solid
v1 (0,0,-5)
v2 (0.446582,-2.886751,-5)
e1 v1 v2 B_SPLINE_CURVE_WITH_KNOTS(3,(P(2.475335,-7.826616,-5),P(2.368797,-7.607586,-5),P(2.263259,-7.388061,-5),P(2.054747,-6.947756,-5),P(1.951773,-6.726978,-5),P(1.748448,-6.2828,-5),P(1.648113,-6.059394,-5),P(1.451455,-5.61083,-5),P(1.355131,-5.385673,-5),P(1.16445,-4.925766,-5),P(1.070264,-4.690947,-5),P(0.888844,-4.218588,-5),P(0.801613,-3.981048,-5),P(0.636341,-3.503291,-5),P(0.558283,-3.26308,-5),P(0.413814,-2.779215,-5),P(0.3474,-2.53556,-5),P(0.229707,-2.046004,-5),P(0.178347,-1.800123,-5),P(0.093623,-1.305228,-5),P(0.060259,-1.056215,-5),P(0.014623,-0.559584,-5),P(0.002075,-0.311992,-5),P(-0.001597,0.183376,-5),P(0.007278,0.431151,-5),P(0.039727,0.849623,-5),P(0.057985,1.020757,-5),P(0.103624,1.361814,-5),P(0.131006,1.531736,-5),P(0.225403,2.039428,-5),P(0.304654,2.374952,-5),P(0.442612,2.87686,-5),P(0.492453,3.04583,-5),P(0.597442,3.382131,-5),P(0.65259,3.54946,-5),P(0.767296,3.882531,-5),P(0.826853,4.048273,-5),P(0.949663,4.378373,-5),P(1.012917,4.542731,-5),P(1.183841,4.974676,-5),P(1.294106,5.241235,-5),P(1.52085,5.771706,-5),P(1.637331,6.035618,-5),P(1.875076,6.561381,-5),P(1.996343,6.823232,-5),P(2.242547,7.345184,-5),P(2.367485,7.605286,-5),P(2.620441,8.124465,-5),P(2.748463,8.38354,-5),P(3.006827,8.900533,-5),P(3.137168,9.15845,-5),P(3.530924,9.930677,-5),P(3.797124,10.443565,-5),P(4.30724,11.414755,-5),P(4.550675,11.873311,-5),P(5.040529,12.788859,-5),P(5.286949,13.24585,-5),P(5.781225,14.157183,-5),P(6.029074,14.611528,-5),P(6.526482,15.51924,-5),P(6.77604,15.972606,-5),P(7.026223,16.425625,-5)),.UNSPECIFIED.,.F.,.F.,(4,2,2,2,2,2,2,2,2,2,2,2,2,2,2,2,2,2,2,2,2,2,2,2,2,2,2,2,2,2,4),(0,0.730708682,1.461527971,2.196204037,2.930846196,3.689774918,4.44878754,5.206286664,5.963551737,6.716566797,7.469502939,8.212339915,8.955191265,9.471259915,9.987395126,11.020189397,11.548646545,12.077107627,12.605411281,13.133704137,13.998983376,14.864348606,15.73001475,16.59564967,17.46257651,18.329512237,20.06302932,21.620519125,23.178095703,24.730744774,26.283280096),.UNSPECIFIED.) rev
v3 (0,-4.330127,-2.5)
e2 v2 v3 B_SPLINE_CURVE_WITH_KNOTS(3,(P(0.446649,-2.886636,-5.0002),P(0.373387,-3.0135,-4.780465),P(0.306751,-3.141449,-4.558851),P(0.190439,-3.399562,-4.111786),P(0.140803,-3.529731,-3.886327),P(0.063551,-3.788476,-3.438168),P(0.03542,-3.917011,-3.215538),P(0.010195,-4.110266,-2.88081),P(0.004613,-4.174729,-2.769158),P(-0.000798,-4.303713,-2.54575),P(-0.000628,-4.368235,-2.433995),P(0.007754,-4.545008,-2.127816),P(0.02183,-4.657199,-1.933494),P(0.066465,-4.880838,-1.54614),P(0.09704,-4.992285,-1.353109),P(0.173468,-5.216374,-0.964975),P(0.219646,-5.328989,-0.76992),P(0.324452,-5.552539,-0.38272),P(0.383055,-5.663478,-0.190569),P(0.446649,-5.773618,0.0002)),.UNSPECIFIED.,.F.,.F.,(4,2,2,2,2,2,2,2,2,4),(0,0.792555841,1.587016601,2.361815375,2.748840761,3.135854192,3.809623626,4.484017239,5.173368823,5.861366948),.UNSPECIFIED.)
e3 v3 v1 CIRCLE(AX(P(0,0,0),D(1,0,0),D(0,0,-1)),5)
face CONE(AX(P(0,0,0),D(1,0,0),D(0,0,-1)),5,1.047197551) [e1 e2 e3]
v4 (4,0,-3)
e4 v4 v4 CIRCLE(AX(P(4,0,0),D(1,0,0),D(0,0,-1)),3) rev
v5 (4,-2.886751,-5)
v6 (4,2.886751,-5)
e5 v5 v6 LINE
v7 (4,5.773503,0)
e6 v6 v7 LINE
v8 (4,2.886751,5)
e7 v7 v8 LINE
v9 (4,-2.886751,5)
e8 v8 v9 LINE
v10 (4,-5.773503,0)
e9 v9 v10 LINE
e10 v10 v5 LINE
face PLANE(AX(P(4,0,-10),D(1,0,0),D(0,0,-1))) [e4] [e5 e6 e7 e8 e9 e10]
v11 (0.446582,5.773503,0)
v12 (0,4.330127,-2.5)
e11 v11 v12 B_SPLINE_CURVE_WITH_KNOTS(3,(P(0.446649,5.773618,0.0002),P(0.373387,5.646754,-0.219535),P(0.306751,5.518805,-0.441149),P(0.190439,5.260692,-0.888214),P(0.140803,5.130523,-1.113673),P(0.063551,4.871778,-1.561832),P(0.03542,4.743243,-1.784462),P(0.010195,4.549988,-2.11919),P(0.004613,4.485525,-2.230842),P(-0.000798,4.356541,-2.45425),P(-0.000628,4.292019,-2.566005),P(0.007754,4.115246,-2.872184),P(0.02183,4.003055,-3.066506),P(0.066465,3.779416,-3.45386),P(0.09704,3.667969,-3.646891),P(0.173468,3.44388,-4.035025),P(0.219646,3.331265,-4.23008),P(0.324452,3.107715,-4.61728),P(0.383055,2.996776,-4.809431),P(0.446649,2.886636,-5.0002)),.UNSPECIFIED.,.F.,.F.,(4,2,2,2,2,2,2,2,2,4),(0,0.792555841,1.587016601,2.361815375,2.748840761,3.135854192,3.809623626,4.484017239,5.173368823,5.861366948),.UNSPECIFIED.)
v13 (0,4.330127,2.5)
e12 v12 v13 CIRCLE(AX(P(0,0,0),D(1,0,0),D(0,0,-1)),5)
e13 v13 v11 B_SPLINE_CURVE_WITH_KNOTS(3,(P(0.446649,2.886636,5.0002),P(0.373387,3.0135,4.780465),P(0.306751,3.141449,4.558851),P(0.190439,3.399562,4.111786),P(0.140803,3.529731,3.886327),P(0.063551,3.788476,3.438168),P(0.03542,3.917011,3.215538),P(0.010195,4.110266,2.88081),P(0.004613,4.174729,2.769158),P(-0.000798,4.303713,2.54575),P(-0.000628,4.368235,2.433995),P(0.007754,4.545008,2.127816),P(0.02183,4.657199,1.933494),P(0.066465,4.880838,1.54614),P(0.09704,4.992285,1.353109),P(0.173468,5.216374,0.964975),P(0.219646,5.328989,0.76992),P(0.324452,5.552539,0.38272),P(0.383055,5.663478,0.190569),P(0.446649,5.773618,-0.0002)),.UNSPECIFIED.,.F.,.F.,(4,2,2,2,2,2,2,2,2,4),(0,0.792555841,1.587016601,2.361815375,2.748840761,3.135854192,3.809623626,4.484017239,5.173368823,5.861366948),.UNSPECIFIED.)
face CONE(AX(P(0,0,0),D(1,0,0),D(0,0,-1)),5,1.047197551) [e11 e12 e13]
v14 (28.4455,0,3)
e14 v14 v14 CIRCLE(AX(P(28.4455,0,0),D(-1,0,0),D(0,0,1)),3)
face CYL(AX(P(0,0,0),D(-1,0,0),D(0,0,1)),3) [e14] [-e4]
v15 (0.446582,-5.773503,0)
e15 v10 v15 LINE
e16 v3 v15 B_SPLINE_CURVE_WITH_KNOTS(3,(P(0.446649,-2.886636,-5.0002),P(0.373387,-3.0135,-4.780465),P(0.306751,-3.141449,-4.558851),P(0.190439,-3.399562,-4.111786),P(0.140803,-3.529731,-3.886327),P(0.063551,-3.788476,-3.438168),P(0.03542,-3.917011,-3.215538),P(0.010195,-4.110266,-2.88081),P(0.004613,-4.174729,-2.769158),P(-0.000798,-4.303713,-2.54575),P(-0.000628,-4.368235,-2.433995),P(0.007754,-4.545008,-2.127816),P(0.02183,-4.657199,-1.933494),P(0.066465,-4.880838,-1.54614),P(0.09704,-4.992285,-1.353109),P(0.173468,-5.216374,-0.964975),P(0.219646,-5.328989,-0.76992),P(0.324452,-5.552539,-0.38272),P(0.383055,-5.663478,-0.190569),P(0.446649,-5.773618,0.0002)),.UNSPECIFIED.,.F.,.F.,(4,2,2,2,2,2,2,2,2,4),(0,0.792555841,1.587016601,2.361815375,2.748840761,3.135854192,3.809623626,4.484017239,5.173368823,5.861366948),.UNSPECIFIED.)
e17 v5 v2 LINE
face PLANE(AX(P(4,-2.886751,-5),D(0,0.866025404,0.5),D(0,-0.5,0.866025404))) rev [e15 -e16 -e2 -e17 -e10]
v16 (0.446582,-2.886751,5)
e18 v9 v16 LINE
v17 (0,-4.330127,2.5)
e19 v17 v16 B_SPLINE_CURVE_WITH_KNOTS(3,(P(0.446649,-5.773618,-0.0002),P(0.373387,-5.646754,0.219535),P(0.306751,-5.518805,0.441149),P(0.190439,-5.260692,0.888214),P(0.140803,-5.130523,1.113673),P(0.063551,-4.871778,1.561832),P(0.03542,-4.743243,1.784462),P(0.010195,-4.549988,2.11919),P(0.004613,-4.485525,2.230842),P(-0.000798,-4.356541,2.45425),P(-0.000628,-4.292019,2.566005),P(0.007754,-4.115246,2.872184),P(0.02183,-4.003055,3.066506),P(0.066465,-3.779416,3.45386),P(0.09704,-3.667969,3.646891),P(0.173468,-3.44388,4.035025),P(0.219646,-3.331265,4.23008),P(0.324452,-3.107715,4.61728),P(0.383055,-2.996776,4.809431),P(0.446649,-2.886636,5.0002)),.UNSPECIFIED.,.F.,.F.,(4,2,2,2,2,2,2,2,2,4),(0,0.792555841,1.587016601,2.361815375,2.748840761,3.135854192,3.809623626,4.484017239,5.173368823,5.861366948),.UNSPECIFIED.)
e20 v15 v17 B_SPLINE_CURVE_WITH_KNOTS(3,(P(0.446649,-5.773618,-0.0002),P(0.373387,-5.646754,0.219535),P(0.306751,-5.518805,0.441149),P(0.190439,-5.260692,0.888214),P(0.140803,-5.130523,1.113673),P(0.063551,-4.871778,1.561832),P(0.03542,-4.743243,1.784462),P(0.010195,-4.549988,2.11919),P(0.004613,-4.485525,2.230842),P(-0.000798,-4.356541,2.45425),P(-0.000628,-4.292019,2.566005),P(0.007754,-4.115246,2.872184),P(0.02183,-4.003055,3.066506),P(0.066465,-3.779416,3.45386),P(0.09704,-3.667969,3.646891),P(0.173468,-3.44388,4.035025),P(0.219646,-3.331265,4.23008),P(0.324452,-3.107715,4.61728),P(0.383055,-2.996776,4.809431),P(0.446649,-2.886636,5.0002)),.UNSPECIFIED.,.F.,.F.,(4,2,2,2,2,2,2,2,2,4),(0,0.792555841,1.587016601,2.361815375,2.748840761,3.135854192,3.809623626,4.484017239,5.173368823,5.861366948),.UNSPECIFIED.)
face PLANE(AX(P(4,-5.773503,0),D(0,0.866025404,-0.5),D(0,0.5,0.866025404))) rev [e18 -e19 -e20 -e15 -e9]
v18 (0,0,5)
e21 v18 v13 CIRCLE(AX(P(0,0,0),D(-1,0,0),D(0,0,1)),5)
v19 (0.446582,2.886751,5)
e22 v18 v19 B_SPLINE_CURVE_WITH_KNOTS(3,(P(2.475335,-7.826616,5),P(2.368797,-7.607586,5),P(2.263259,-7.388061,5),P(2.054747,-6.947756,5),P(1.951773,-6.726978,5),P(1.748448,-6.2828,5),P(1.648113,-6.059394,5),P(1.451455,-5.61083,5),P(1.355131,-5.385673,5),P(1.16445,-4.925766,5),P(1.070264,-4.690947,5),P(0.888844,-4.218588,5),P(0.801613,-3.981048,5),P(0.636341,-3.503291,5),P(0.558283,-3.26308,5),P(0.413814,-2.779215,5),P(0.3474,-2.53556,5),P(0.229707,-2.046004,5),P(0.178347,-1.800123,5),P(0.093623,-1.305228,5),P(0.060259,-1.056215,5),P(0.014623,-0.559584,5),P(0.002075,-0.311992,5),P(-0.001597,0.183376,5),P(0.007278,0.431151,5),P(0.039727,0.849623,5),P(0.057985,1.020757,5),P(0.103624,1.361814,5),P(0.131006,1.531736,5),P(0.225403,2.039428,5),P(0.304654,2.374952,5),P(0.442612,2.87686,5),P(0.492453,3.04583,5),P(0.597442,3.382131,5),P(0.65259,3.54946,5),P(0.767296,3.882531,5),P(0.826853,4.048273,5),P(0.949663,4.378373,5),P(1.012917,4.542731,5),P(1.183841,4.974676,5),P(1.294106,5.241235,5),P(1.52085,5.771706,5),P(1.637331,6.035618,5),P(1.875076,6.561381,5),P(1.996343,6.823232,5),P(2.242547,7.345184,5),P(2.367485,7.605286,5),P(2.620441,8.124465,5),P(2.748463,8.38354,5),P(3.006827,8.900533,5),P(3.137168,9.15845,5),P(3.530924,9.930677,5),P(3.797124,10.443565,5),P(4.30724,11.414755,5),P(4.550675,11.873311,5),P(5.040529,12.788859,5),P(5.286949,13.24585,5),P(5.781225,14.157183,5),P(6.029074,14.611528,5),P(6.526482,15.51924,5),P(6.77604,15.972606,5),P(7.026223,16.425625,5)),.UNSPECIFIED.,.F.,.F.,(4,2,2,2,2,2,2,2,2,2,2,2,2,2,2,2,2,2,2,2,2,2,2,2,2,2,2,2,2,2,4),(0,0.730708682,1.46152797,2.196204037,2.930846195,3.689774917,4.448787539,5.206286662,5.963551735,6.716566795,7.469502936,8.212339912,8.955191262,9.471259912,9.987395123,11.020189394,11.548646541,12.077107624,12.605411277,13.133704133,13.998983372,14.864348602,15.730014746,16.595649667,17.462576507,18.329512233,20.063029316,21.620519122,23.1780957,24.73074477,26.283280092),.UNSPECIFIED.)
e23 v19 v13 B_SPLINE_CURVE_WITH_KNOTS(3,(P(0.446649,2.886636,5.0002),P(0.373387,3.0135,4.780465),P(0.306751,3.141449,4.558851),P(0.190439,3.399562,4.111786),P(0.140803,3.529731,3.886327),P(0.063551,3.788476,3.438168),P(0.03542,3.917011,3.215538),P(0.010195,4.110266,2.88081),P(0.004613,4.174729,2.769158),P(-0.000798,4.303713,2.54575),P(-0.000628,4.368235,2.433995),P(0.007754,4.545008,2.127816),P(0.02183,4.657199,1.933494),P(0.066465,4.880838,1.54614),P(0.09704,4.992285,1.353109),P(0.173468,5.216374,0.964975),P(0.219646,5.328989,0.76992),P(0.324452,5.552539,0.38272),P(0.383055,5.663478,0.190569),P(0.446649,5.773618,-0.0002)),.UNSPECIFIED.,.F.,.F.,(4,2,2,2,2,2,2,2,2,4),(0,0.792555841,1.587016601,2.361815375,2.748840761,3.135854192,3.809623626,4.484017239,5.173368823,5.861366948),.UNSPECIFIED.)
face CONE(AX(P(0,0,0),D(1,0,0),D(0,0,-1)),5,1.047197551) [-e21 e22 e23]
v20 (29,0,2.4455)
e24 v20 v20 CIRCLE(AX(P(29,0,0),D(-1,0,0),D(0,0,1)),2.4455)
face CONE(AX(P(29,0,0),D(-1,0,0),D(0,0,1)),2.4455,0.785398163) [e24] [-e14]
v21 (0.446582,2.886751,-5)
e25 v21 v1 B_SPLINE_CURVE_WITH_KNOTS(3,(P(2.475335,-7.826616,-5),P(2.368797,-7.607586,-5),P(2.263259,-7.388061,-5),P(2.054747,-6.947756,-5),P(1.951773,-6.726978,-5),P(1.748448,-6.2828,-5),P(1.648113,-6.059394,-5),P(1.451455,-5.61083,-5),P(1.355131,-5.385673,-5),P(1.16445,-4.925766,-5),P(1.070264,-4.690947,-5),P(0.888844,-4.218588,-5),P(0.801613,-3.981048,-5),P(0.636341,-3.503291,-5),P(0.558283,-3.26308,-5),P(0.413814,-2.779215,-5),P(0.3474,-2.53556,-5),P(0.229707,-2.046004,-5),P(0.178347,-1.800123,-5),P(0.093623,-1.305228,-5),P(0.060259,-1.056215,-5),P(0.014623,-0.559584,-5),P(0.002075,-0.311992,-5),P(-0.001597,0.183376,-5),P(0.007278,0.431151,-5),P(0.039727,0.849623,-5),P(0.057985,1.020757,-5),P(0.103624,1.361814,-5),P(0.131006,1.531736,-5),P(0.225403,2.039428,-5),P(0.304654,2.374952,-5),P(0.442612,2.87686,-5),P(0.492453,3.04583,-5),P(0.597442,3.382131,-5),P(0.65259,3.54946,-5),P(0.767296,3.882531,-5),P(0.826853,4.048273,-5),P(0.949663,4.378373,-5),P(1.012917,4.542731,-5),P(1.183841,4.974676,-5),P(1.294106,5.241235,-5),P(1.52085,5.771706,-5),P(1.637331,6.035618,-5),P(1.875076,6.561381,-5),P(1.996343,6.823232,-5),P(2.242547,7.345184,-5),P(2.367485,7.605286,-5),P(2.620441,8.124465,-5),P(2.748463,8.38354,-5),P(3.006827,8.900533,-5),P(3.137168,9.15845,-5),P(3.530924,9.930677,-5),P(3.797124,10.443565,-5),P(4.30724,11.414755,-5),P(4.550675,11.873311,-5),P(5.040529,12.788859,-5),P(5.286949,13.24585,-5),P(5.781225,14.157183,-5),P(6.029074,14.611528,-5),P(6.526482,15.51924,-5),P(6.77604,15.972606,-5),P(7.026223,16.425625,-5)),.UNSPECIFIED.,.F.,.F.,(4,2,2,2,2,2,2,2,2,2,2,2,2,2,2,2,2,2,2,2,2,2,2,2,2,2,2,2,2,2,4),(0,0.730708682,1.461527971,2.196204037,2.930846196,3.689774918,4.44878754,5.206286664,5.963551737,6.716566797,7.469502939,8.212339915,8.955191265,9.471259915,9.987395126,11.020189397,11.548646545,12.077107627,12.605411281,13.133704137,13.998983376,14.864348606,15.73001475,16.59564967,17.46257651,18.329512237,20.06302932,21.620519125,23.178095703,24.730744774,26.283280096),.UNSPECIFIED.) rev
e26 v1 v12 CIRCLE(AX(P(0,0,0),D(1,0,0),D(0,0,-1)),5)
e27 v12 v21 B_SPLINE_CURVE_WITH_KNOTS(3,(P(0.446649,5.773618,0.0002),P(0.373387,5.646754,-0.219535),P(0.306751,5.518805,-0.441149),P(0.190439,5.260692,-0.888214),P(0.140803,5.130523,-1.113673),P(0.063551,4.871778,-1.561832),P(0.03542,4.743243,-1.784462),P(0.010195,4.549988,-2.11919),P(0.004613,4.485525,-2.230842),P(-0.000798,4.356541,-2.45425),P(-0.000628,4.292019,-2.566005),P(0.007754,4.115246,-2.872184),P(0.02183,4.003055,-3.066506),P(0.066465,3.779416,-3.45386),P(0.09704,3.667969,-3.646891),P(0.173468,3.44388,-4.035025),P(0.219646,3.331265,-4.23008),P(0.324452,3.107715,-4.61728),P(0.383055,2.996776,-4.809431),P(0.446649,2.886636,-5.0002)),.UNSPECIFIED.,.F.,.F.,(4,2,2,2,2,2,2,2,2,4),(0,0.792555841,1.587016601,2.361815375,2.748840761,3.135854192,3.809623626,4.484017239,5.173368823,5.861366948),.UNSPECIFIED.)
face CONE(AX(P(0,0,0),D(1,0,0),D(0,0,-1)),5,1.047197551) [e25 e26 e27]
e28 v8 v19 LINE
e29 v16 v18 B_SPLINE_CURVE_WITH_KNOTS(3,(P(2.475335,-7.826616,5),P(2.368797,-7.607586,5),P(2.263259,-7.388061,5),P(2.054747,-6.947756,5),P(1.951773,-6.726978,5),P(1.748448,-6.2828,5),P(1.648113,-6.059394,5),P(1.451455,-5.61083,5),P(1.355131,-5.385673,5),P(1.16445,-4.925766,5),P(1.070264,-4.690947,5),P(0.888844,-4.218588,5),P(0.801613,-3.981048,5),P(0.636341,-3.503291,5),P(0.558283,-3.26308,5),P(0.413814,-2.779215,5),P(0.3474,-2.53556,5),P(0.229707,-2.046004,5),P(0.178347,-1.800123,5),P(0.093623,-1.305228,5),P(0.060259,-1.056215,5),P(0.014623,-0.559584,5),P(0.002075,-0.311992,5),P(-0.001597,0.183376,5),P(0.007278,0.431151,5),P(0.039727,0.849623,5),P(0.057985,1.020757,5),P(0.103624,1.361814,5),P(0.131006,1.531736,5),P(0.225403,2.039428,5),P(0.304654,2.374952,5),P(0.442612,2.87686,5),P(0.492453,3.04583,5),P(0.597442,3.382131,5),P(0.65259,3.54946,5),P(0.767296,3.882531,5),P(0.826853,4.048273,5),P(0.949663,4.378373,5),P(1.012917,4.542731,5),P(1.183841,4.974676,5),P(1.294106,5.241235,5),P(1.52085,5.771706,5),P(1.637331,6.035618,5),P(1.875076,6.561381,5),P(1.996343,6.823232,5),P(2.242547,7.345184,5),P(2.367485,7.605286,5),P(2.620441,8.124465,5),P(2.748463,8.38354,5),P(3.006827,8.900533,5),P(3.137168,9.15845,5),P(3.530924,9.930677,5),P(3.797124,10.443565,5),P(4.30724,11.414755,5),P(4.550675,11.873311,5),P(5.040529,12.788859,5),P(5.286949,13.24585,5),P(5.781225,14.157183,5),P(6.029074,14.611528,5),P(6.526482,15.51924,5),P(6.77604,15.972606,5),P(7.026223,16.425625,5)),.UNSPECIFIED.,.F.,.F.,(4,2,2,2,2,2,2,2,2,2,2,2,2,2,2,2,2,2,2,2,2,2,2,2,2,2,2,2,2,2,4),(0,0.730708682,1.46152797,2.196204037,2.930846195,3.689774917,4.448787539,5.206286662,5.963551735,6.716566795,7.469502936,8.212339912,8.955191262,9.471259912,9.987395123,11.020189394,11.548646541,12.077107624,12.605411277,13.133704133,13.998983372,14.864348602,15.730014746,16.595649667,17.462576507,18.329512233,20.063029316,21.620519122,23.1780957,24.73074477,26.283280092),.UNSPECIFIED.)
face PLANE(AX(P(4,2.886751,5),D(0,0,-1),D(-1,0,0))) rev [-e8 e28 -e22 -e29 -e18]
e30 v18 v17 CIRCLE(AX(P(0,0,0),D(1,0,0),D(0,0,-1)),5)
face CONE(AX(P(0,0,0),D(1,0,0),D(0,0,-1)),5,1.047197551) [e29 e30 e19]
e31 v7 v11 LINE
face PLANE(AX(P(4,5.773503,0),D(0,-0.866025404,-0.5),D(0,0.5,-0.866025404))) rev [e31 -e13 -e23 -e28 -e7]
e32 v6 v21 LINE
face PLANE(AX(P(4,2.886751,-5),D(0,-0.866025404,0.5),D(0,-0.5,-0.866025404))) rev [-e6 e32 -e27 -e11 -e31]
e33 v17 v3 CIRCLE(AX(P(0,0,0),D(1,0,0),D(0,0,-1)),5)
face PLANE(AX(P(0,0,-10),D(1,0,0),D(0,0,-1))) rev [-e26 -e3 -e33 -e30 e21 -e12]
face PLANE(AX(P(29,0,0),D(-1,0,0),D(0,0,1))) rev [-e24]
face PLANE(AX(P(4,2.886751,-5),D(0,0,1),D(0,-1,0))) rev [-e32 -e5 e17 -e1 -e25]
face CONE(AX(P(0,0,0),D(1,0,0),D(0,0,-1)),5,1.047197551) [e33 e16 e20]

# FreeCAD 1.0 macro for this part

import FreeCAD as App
import Part
import Sketcher

V = App.Vector
Q = App.Units.Quantity

doc = App.newDocument("Part")
body = doc.addObject("PartDesign::Body", "Body")

sketch1 = doc.addObject("Sketcher::SketchObject", "Sketch")
body.addObject(sketch1)
sketch1.AttachmentSupport = (doc.YZ_Plane, [""])
sketch1.MapMode = "FlatFace"
sketch1.addGeometry(Part.LineSegment(V(-3, -5, 0), V(3, -5, 0)), False)
sketch1.addGeometry(Part.LineSegment(V(3, -5, 0), V(6, 0, 0)), False)
sketch1.addGeometry(Part.LineSegment(V(6, 0, 0), V(3, 5, 0)), False)
sketch1.addGeometry(Part.LineSegment(V(3, 5, 0), V(-3, 5, 0)), False)
sketch1.addGeometry(Part.LineSegment(V(-3, 5, 0), V(-6, 0, 0)), False)
sketch1.addGeometry(Part.LineSegment(V(-6, 0, 0), V(-3, -5, 0)), False)
sketch1.addConstraint(Sketcher.Constraint("Coincident", 0, 2, 1, 1))
sketch1.addConstraint(Sketcher.Constraint("Coincident", 1, 2, 2, 1))
sketch1.addConstraint(Sketcher.Constraint("Coincident", 2, 2, 3, 1))
sketch1.addConstraint(Sketcher.Constraint("Coincident", 3, 2, 4, 1))
sketch1.addConstraint(Sketcher.Constraint("Coincident", 4, 2, 5, 1))
sketch1.addConstraint(Sketcher.Constraint("Coincident", 5, 2, 0, 1))
sketch1.addConstraint(Sketcher.Constraint("Horizontal", 0))
sketch1.addConstraint(Sketcher.Constraint("Horizontal", 3))
sketch1.addConstraint(Sketcher.Constraint("Symmetric", 0, 2, 3, 2, -1, 1))
sketch1.addConstraint(Sketcher.Constraint("Symmetric", 1, 2, 4, 2, -1, 1))
sketch1.addConstraint(Sketcher.Constraint("PointOnObject", 1, 2, -1))
sketch1.addConstraint(Sketcher.Constraint("Parallel", 2, 5))
sketch1.addConstraint(Sketcher.Constraint("Vertical", 0, 2, 2, 2))
sketch1.addConstraint(Sketcher.Constraint("Angle", 1, Q("60 deg")))
sketch1.addConstraint(Sketcher.Constraint("DistanceY", 0, 2, -1, 1, Q("5 mm")))
sketch1.addConstraint(Sketcher.Constraint("DistanceX", 0, 1, 0, 2, Q("5.773503 mm")))
pad1 = doc.addObject("PartDesign::Pad", "Pad")
body.addObject(pad1)
pad1.Profile = sketch1
pad1.Length = 4

sketch2 = doc.addObject("Sketcher::SketchObject", "Sketch001")
body.addObject(sketch2)
sketch2.AttachmentSupport = (doc.XY_Plane, [""])
sketch2.MapMode = "FlatFace"
sketch2.addGeometry(Part.LineSegment(V(0, 0, 0), V(29, 0, 0)), False)
sketch2.addGeometry(Part.LineSegment(V(29, 0, 0), V(29, 2.4, 0)), False)
sketch2.addGeometry(Part.LineSegment(V(29, 2.4, 0), V(28.4, 3, 0)), False)
sketch2.addGeometry(Part.LineSegment(V(28.4, 3, 0), V(0, 3, 0)), False)
sketch2.addGeometry(Part.LineSegment(V(0, 3, 0), V(0, 0, 0)), False)
sketch2.addConstraint(Sketcher.Constraint("Coincident", 0, 2, 1, 1))
sketch2.addConstraint(Sketcher.Constraint("Coincident", 1, 2, 2, 1))
sketch2.addConstraint(Sketcher.Constraint("Coincident", 2, 2, 3, 1))
sketch2.addConstraint(Sketcher.Constraint("Coincident", 3, 2, 4, 1))
sketch2.addConstraint(Sketcher.Constraint("Coincident", 4, 2, 0, 1))
sketch2.addConstraint(Sketcher.Constraint("Horizontal", 0))
sketch2.addConstraint(Sketcher.Constraint("Vertical", 1))
sketch2.addConstraint(Sketcher.Constraint("Horizontal", 3))
sketch2.addConstraint(Sketcher.Constraint("Vertical", 4))
sketch2.addConstraint(Sketcher.Constraint("Coincident", 4, 2, -1, 1))
sketch2.addConstraint(Sketcher.Constraint("DistanceX", 0, 1, 0, 2, Q("29 mm")))
sketch2.addConstraint(Sketcher.Constraint("DistanceY", 4, 2, 4, 1, Q("3 mm")))
sketch2.addConstraint(Sketcher.Constraint("Angle", 2, Q("135 deg")))
sketch2.addConstraint(Sketcher.Constraint("DistanceX", 3, 2, 3, 1, Q("28.4455 mm")))
revolution = doc.addObject("PartDesign::Revolution", "Revolution")
body.addObject(revolution)
revolution.Profile = sketch2
revolution.ReferenceAxis = (sketch2, ["H_Axis"])
revolution.Angle = 360

sketch3 = doc.addObject("Sketcher::SketchObject", "Sketch002")
body.addObject(sketch3)
sketch3.AttachmentSupport = (doc.XY_Plane, [""])
sketch3.MapMode = "FlatFace"
sketch3.addGeometry(Part.LineSegment(V(0, 5, 0), V(3, 11, 0)), False)
sketch3.addGeometry(Part.LineSegment(V(3, 11, 0), V(3, 16, 0)), False)
sketch3.addGeometry(Part.LineSegment(V(3, 16, 0), V(-10, 16, 0)), False)
sketch3.addGeometry(Part.LineSegment(V(-10, 16, 0), V(-10, 5, 0)), False)
sketch3.addGeometry(Part.LineSegment(V(-10, 5, 0), V(0, 5, 0)), False)
sketch3.addConstraint(Sketcher.Constraint("Coincident", 0, 2, 1, 1))
sketch3.addConstraint(Sketcher.Constraint("Coincident", 1, 2, 2, 1))
sketch3.addConstraint(Sketcher.Constraint("Coincident", 2, 2, 3, 1))
sketch3.addConstraint(Sketcher.Constraint("Coincident", 3, 2, 4, 1))
sketch3.addConstraint(Sketcher.Constraint("Coincident", 4, 2, 0, 1))
sketch3.addConstraint(Sketcher.Constraint("Vertical", 1))
sketch3.addConstraint(Sketcher.Constraint("Horizontal", 2))
sketch3.addConstraint(Sketcher.Constraint("Vertical", 3))
sketch3.addConstraint(Sketcher.Constraint("Horizontal", 4))
sketch3.addConstraint(Sketcher.Constraint("PointOnObject", 4, 2, -2))
sketch3.addConstraint(Sketcher.Constraint("DistanceX", 4, 1, 4, 2, Q("10 mm")))
sketch3.addConstraint(Sketcher.Constraint("DistanceY", 1, 1, 1, 2, Q("5 mm")))
sketch3.addConstraint(Sketcher.Constraint("Angle", 0, Q("60 deg")))
sketch3.addConstraint(Sketcher.Constraint("DistanceY", -1, 1, 3, 2, Q("5 mm")))
sketch3.addConstraint(Sketcher.Constraint("DistanceX", 2, 2, 2, 1, Q("13.333333 mm")))
groove = doc.addObject("PartDesign::Groove", "Groove")
body.addObject(groove)
groove.Profile = sketch3
groove.ReferenceAxis = (sketch3, ["H_Axis"])
groove.Angle = 360

doc.recompute()
